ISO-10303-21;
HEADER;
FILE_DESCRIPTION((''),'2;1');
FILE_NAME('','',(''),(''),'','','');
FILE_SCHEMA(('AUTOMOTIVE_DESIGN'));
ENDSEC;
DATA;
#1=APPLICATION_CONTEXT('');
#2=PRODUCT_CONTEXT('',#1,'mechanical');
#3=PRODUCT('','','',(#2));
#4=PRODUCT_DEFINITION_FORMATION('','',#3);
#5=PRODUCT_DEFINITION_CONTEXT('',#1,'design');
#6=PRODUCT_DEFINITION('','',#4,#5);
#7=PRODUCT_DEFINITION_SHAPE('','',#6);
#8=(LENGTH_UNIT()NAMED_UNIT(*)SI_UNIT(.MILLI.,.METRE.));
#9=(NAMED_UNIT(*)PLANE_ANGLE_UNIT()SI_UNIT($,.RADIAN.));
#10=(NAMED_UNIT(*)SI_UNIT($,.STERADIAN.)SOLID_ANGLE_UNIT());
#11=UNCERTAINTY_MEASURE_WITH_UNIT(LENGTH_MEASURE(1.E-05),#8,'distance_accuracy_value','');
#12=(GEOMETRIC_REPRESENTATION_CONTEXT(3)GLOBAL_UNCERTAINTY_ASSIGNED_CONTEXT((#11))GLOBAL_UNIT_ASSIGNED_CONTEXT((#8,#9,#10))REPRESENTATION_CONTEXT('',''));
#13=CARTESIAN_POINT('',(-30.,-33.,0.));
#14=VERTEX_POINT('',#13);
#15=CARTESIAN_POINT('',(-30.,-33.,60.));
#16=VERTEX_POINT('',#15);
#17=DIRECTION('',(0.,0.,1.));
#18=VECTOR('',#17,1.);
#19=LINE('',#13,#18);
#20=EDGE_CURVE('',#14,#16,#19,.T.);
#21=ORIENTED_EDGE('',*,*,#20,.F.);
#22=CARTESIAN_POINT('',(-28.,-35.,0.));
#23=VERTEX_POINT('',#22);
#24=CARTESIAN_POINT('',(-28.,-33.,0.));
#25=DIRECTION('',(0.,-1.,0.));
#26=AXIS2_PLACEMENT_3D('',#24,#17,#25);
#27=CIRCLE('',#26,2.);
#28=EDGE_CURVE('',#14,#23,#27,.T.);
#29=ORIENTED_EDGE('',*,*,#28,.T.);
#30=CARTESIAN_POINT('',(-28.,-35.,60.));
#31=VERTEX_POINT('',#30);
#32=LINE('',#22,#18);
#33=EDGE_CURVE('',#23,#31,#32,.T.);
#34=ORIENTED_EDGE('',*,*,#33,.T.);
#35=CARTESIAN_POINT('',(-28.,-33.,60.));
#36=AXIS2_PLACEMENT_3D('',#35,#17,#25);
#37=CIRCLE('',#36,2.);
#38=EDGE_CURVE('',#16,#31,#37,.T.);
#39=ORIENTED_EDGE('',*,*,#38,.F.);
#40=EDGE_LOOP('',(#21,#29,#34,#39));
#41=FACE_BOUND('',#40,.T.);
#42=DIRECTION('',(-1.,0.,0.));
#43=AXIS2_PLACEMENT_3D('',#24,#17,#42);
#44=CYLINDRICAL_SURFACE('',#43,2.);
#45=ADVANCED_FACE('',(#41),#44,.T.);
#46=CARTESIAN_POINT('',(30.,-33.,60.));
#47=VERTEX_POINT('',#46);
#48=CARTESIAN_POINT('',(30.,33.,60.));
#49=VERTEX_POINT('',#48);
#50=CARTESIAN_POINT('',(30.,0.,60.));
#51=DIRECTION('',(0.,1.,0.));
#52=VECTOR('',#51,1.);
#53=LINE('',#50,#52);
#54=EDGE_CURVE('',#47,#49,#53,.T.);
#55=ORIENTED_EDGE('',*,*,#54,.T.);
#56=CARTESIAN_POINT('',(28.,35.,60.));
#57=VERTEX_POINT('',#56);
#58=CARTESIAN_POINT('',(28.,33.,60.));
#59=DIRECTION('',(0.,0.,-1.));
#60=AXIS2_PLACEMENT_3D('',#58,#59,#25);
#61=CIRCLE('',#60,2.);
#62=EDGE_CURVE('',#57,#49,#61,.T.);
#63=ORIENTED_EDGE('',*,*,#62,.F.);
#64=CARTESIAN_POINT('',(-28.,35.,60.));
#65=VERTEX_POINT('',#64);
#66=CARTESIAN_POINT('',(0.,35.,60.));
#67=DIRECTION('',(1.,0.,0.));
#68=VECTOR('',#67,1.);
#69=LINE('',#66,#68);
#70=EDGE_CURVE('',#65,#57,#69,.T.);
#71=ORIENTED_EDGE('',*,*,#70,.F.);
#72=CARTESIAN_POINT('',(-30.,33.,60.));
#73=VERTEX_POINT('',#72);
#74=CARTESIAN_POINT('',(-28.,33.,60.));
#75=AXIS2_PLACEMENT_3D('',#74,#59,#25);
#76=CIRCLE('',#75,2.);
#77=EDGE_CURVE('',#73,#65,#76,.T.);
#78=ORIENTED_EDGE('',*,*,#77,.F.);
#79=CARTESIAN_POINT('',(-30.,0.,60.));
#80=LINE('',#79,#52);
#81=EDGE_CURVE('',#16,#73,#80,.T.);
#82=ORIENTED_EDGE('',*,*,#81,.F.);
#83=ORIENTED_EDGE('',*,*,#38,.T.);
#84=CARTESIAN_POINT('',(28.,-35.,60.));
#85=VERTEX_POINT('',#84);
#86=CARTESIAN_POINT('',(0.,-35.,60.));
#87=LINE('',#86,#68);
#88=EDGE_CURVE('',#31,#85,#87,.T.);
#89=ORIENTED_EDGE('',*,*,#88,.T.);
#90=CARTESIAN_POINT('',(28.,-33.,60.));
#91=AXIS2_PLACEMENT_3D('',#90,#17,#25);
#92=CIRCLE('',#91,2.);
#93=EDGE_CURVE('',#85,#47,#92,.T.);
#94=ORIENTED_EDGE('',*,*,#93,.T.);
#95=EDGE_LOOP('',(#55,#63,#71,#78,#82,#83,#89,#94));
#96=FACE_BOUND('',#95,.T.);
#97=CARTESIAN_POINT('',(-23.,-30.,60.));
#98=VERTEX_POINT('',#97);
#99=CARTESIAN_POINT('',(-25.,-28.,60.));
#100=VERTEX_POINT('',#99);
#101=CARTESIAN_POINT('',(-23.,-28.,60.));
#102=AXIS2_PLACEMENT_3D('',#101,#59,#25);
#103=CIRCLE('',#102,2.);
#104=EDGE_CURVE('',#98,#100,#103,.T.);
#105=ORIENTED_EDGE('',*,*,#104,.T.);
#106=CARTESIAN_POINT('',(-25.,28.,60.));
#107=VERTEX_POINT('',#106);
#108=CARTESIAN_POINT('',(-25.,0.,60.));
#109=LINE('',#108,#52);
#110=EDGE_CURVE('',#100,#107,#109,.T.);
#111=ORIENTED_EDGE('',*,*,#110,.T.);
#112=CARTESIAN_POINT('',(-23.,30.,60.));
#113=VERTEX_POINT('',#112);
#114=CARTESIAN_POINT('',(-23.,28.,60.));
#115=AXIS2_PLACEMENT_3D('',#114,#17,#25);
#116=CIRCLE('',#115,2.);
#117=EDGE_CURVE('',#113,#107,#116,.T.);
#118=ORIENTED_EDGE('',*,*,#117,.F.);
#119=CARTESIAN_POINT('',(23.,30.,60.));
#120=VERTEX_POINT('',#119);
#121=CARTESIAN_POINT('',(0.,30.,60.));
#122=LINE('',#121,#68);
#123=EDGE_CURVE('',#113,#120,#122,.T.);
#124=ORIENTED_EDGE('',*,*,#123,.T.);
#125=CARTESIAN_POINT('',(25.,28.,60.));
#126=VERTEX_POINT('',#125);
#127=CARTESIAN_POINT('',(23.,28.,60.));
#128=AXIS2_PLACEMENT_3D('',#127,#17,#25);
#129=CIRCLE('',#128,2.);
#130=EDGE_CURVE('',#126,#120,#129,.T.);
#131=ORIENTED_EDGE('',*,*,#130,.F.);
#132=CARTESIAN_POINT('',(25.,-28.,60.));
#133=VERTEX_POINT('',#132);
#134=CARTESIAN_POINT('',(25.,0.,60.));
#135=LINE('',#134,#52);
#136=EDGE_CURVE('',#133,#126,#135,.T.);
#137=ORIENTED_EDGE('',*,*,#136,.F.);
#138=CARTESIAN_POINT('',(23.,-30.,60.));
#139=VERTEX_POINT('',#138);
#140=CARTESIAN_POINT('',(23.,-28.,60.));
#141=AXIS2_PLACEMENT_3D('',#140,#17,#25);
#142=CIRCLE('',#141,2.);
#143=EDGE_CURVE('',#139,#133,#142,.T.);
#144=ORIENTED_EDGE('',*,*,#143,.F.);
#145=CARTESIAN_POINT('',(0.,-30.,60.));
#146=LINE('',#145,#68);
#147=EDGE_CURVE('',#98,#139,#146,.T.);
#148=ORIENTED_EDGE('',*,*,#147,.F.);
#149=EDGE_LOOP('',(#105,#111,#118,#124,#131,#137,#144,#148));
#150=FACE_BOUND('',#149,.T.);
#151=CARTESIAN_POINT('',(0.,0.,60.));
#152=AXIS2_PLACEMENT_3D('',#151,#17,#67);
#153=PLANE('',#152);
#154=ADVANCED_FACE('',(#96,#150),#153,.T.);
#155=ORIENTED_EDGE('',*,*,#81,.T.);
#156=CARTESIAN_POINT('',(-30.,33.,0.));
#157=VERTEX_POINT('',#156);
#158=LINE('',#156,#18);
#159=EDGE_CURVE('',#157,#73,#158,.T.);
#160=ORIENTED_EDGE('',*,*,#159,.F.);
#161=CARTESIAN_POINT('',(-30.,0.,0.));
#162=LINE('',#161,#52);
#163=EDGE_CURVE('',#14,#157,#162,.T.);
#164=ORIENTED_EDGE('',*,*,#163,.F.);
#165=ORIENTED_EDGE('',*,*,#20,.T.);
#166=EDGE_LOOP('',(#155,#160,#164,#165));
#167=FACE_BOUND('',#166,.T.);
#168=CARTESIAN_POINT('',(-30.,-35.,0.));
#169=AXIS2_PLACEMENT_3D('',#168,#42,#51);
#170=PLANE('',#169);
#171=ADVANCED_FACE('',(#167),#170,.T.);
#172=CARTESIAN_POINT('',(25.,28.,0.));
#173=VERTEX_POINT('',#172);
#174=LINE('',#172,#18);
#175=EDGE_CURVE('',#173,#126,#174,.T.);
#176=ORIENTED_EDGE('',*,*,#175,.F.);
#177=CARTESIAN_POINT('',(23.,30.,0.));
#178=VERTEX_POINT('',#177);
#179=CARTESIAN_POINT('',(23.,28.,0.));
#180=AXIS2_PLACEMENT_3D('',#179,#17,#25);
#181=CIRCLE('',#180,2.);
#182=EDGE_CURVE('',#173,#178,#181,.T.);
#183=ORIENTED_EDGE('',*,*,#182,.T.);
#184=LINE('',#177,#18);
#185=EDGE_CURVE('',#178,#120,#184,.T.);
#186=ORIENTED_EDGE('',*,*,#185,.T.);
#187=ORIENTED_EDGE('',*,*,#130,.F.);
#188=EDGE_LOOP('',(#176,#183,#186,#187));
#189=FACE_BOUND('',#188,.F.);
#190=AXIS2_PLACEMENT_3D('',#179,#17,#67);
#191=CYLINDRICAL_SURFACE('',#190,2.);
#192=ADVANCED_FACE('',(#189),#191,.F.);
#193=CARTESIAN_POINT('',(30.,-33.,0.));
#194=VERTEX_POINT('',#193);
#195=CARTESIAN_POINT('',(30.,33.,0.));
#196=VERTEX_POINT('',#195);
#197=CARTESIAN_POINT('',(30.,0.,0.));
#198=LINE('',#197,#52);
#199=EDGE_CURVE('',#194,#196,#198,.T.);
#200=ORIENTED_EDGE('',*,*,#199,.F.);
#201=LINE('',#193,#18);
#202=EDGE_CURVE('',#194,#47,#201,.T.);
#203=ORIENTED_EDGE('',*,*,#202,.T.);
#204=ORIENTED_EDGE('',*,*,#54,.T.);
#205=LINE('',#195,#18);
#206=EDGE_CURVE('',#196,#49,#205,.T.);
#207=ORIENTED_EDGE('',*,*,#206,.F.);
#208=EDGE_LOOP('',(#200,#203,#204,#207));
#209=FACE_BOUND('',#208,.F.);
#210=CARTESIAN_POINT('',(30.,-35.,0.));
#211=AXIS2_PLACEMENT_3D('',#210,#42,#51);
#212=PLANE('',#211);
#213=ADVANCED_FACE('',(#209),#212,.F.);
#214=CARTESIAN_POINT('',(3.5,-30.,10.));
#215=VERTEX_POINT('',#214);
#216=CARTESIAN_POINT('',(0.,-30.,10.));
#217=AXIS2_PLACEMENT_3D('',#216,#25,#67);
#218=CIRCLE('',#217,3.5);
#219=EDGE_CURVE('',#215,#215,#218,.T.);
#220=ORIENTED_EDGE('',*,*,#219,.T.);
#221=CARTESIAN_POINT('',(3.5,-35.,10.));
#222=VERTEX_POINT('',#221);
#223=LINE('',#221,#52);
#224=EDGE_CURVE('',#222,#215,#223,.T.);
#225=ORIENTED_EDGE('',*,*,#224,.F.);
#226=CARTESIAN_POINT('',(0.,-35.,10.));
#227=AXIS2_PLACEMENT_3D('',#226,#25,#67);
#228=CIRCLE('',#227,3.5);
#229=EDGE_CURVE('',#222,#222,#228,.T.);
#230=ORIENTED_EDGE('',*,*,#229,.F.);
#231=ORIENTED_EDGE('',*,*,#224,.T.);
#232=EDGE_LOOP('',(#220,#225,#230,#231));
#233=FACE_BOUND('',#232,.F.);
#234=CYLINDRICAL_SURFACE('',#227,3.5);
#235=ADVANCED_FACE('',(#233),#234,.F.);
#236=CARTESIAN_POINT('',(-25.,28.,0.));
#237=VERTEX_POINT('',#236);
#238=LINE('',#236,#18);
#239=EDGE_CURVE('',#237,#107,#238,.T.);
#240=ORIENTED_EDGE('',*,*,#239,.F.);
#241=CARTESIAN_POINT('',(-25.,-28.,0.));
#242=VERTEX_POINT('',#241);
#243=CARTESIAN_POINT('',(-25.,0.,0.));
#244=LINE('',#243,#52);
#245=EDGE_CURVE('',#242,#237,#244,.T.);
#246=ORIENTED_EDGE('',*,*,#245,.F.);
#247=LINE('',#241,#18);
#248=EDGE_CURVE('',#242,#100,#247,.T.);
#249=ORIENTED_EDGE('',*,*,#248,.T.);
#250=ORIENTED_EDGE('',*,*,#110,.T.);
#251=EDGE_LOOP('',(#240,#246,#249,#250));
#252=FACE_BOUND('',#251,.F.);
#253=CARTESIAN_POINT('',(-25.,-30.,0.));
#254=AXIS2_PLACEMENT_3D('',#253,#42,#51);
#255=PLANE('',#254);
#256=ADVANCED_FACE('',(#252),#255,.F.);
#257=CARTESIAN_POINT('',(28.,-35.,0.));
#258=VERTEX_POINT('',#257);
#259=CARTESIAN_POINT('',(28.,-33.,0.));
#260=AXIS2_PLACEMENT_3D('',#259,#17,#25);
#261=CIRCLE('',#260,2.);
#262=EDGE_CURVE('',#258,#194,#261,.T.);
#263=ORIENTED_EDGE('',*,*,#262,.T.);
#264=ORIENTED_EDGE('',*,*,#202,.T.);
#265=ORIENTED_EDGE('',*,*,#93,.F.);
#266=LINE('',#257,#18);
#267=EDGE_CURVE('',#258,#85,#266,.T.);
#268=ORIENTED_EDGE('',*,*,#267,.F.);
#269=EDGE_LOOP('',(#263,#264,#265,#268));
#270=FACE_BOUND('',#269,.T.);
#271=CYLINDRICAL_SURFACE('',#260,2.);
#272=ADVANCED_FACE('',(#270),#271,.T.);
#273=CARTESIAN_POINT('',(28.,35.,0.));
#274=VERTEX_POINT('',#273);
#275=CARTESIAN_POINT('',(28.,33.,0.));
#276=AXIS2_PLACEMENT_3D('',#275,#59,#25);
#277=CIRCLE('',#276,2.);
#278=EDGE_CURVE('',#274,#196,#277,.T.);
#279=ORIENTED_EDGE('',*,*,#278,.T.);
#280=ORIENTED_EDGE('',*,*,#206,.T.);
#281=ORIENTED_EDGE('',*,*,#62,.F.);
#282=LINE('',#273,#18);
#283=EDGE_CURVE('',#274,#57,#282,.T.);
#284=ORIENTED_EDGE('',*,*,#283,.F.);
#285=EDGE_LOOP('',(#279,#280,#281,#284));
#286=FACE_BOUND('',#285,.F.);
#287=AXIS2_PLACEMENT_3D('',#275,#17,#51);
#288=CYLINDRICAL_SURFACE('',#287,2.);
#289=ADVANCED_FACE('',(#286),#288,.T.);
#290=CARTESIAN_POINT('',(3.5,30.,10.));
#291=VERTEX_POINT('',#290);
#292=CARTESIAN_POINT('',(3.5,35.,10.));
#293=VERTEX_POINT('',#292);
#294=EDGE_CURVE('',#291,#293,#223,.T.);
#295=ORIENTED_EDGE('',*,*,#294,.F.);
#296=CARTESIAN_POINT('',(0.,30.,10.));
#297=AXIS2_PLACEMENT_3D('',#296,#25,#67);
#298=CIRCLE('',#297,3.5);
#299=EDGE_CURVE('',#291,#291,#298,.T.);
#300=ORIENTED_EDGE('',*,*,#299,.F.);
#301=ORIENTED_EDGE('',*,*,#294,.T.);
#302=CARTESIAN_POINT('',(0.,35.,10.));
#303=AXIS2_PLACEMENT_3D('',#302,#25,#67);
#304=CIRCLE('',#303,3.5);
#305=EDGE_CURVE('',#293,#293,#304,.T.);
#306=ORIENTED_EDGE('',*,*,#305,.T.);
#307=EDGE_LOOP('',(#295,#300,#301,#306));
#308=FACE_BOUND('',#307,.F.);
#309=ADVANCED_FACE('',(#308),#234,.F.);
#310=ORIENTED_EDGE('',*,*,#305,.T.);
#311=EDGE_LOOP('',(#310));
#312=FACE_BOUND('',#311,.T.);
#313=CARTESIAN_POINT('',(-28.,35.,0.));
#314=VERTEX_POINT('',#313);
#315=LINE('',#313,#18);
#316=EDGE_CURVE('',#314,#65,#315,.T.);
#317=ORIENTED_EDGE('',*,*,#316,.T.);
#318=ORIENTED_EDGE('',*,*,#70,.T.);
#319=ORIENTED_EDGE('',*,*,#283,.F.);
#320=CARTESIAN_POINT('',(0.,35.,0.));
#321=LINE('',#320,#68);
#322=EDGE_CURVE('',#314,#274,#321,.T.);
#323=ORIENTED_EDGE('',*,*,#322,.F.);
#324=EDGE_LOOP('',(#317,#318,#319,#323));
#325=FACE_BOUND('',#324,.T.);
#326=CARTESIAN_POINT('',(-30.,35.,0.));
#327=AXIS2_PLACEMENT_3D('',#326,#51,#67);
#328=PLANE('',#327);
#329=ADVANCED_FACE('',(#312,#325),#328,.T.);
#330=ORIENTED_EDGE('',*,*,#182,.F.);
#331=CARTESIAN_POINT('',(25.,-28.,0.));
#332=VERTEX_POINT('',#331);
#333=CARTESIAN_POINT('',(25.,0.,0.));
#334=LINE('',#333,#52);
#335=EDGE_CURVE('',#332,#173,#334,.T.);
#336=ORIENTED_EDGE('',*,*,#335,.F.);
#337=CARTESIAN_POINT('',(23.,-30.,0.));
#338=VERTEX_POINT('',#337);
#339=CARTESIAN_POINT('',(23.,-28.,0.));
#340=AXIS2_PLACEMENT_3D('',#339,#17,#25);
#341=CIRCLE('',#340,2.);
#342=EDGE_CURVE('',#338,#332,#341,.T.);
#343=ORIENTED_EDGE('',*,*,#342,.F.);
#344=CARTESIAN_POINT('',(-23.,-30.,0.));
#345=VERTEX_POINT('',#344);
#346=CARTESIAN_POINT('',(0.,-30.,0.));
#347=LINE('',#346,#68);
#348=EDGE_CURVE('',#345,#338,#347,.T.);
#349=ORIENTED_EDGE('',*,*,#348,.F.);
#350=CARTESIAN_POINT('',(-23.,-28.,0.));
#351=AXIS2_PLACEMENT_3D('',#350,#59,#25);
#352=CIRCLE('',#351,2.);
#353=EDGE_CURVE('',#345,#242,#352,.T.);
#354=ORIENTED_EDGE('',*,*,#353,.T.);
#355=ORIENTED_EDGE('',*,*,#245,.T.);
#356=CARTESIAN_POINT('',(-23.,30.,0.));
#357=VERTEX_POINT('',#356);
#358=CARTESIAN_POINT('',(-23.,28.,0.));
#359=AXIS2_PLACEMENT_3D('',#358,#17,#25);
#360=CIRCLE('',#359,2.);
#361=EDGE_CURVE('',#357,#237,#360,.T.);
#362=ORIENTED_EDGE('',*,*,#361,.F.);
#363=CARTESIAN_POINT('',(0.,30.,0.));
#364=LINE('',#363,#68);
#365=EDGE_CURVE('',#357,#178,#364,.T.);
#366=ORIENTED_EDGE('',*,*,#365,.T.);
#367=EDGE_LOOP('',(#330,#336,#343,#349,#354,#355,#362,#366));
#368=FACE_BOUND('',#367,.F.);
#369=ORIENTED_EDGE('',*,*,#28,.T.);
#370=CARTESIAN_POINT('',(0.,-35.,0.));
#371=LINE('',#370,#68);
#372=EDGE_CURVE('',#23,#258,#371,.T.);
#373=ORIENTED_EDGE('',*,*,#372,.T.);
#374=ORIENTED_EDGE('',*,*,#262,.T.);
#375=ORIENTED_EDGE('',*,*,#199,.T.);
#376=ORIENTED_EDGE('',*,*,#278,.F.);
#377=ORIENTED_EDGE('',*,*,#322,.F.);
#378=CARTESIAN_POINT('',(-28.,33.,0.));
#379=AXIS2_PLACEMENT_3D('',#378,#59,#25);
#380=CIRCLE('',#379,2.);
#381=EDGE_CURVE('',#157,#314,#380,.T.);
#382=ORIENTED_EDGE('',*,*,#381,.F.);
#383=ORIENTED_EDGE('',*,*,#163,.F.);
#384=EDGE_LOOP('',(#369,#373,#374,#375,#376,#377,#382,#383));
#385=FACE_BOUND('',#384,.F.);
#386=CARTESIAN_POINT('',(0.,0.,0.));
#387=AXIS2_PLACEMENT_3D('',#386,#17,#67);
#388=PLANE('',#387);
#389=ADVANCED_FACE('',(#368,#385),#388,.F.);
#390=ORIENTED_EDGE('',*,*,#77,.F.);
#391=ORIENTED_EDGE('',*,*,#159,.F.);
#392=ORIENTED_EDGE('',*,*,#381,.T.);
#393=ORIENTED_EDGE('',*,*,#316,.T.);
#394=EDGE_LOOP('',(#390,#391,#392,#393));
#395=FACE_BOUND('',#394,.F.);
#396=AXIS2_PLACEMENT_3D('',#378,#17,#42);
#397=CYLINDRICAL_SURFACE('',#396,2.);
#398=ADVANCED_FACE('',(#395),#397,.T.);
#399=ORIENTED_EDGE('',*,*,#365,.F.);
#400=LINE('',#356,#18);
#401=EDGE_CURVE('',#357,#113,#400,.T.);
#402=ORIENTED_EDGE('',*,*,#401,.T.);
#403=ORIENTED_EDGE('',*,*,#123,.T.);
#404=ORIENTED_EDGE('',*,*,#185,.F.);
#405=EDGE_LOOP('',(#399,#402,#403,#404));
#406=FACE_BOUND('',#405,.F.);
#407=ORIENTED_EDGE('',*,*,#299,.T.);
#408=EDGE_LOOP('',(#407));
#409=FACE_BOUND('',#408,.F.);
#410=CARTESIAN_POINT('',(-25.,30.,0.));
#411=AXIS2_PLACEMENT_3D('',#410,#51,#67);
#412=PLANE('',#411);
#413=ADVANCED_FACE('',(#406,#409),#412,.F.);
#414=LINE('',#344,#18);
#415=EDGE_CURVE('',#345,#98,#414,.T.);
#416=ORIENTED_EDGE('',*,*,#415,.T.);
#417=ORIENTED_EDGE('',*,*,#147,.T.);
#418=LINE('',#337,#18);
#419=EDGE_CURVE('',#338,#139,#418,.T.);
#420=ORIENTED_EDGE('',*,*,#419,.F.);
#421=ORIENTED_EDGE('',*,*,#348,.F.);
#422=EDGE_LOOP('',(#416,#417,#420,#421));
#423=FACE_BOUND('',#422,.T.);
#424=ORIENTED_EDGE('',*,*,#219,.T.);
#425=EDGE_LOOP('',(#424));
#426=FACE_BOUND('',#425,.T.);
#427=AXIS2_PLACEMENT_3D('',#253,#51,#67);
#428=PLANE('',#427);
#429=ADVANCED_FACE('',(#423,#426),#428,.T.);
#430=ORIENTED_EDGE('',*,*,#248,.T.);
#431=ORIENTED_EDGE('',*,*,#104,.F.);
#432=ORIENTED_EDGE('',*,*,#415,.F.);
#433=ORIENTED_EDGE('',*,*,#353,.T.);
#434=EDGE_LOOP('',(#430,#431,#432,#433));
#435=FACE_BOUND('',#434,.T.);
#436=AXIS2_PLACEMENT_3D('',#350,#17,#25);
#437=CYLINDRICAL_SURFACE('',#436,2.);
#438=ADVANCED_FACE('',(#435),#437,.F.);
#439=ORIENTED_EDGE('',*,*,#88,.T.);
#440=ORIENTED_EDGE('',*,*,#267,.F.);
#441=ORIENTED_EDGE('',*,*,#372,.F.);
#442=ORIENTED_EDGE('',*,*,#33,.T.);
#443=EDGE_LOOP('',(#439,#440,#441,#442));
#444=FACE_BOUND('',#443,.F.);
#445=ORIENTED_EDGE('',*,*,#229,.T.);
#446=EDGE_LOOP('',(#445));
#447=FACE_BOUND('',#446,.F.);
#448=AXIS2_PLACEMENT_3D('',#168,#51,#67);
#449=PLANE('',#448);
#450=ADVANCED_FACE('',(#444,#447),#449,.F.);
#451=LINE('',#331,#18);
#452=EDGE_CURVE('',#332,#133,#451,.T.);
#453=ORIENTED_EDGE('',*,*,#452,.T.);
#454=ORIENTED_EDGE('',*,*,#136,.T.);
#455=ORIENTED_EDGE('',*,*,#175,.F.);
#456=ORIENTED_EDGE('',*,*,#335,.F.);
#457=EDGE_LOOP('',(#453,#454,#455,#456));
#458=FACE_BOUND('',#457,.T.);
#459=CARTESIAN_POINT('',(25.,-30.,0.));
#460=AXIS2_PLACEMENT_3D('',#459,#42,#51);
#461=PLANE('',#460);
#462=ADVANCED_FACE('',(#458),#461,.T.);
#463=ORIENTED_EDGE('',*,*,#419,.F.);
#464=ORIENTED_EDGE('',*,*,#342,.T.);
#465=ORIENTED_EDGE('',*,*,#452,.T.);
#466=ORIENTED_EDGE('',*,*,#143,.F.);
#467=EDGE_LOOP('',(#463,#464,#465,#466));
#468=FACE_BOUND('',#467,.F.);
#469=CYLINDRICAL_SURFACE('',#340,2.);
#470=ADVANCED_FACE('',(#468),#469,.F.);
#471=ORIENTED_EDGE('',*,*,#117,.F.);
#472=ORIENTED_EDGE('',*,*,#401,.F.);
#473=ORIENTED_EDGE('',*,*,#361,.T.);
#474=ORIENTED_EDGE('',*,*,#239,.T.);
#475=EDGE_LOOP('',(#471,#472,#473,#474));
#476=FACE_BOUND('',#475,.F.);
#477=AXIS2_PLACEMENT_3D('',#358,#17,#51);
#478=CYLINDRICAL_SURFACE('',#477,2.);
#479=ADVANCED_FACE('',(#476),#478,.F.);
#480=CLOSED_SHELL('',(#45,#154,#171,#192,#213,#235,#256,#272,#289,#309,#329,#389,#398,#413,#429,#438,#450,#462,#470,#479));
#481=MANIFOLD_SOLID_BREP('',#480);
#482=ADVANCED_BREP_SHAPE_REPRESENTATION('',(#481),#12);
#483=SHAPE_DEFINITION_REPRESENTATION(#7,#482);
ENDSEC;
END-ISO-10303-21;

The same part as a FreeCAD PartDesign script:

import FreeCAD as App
import Part
import Sketcher
from FreeCAD import Vector


def edges_at(feature, points):
    """Names of the edges that pass closest to the given points."""
    edges = feature.Shape.Edges
    near = lambda p: min(range(len(edges)), key=lambda i: edges[i].distToShape(Part.Vertex(*p))[0])
    return sorted({f"Edge{near(p) + 1}" for p in points})

doc = App.newDocument("Part")
body = doc.addObject("PartDesign::Body", "Body")

# Sketch on XY plane
sketch1 = doc.addObject("Sketcher::SketchObject", "Sketch")
body.addObject(sketch1)
sketch1.AttachmentSupport = (doc.XY_Plane, [""])
sketch1.MapMode = "FlatFace"
sketch1.addGeometry(Part.LineSegment(Vector(-30, 35, 0), Vector(-30, -35, 0)), False)
sketch1.addGeometry(Part.LineSegment(Vector(-30, -35, 0), Vector(30, -35, 0)), False)
sketch1.addGeometry(Part.LineSegment(Vector(30, -35, 0), Vector(30, 35, 0)), False)
sketch1.addGeometry(Part.LineSegment(Vector(30, 35, 0), Vector(-30, 35, 0)), False)
sketch1.addGeometry(Part.LineSegment(Vector(25, -30, 0), Vector(-25, -30, 0)), False)
sketch1.addGeometry(Part.LineSegment(Vector(-25, -30, 0), Vector(-25, 30, 0)), False)
sketch1.addGeometry(Part.LineSegment(Vector(-25, 30, 0), Vector(25, 30, 0)), False)
sketch1.addGeometry(Part.LineSegment(Vector(25, 30, 0), Vector(25, -30, 0)), False)
sketch1.addConstraint(Sketcher.Constraint("Coincident", 0, 2, 1, 1))
sketch1.addConstraint(Sketcher.Constraint("Coincident", 1, 2, 2, 1))
sketch1.addConstraint(Sketcher.Constraint("Coincident", 2, 2, 3, 1))
sketch1.addConstraint(Sketcher.Constraint("Coincident", 3, 2, 0, 1))
sketch1.addConstraint(Sketcher.Constraint("Coincident", 4, 2, 5, 1))
sketch1.addConstraint(Sketcher.Constraint("Coincident", 5, 2, 6, 1))
sketch1.addConstraint(Sketcher.Constraint("Coincident", 6, 2, 7, 1))
sketch1.addConstraint(Sketcher.Constraint("Coincident", 7, 2, 4, 1))
sketch1.addConstraint(Sketcher.Constraint("Vertical", 0))
sketch1.addConstraint(Sketcher.Constraint("Horizontal", 1))
sketch1.addConstraint(Sketcher.Constraint("Vertical", 2))
sketch1.addConstraint(Sketcher.Constraint("Horizontal", 3))
sketch1.addConstraint(Sketcher.Constraint("Horizontal", 4))
sketch1.addConstraint(Sketcher.Constraint("Vertical", 5))
sketch1.addConstraint(Sketcher.Constraint("Horizontal", 6))
sketch1.addConstraint(Sketcher.Constraint("Vertical", 7))
sketch1.addConstraint(Sketcher.Constraint("Symmetric", 0, 2, 2, 2, -1, 1))
sketch1.addConstraint(Sketcher.Constraint("Symmetric", 4, 2, 6, 2, -1, 1))
sketch1.addConstraint(Sketcher.Constraint("Equal", 3, 5))
sketch1.addConstraint(Sketcher.Constraint("DistanceX", 1, 1, 1, 2, 60.0))
sketch1.addConstraint(Sketcher.Constraint("DistanceX", 4, 2, 4, 1, 50.0))
sketch1.addConstraint(Sketcher.Constraint("DistanceY", 0, 2, 0, 1, 70.0))
pad1 = doc.addObject("PartDesign::Pad", "Pad")
body.addObject(pad1)
pad1.Profile = sketch1
pad1.Length = 60
doc.recompute()

fillet = doc.addObject("PartDesign::Fillet", "Fillet")
body.addObject(fillet)
fillet.Base = (pad1, edges_at(pad1, [
    (-30, 35, 30),
    (30, 35, 30),
    (30, -35, 30),
    (-30, -35, 30),
    (-25, 30, 30),
    (-25, -30, 30),
    (25, -30, 30),
    (25, 30, 30),
]))
fillet.Radius = 2

# Sketch on XZ plane
sketch2 = doc.addObject("Sketcher::SketchObject", "Sketch001")
body.addObject(sketch2)
sketch2.AttachmentSupport = (doc.XZ_Plane, [""])
sketch2.MapMode = "FlatFace"
sketch2.AttachmentOffset = App.Placement(Vector(0, 0, 35), App.Rotation())
sketch2.addGeometry(Part.Circle(Vector(0, 10, 0), Vector(0, 0, 1), 3.5), False)
sketch2.addConstraint(Sketcher.Constraint("PointOnObject", 0, 3, -2))
sketch2.addConstraint(Sketcher.Constraint("Diameter", 0, 7.0))
sketch2.addConstraint(Sketcher.Constraint("DistanceY", -1, 1, 0, 3, 10.0))
pocket1 = doc.addObject("PartDesign::Pocket", "Pocket")
body.addObject(pocket1)
pocket1.Profile = sketch2
pocket1.Length = 70

doc.recompute()
